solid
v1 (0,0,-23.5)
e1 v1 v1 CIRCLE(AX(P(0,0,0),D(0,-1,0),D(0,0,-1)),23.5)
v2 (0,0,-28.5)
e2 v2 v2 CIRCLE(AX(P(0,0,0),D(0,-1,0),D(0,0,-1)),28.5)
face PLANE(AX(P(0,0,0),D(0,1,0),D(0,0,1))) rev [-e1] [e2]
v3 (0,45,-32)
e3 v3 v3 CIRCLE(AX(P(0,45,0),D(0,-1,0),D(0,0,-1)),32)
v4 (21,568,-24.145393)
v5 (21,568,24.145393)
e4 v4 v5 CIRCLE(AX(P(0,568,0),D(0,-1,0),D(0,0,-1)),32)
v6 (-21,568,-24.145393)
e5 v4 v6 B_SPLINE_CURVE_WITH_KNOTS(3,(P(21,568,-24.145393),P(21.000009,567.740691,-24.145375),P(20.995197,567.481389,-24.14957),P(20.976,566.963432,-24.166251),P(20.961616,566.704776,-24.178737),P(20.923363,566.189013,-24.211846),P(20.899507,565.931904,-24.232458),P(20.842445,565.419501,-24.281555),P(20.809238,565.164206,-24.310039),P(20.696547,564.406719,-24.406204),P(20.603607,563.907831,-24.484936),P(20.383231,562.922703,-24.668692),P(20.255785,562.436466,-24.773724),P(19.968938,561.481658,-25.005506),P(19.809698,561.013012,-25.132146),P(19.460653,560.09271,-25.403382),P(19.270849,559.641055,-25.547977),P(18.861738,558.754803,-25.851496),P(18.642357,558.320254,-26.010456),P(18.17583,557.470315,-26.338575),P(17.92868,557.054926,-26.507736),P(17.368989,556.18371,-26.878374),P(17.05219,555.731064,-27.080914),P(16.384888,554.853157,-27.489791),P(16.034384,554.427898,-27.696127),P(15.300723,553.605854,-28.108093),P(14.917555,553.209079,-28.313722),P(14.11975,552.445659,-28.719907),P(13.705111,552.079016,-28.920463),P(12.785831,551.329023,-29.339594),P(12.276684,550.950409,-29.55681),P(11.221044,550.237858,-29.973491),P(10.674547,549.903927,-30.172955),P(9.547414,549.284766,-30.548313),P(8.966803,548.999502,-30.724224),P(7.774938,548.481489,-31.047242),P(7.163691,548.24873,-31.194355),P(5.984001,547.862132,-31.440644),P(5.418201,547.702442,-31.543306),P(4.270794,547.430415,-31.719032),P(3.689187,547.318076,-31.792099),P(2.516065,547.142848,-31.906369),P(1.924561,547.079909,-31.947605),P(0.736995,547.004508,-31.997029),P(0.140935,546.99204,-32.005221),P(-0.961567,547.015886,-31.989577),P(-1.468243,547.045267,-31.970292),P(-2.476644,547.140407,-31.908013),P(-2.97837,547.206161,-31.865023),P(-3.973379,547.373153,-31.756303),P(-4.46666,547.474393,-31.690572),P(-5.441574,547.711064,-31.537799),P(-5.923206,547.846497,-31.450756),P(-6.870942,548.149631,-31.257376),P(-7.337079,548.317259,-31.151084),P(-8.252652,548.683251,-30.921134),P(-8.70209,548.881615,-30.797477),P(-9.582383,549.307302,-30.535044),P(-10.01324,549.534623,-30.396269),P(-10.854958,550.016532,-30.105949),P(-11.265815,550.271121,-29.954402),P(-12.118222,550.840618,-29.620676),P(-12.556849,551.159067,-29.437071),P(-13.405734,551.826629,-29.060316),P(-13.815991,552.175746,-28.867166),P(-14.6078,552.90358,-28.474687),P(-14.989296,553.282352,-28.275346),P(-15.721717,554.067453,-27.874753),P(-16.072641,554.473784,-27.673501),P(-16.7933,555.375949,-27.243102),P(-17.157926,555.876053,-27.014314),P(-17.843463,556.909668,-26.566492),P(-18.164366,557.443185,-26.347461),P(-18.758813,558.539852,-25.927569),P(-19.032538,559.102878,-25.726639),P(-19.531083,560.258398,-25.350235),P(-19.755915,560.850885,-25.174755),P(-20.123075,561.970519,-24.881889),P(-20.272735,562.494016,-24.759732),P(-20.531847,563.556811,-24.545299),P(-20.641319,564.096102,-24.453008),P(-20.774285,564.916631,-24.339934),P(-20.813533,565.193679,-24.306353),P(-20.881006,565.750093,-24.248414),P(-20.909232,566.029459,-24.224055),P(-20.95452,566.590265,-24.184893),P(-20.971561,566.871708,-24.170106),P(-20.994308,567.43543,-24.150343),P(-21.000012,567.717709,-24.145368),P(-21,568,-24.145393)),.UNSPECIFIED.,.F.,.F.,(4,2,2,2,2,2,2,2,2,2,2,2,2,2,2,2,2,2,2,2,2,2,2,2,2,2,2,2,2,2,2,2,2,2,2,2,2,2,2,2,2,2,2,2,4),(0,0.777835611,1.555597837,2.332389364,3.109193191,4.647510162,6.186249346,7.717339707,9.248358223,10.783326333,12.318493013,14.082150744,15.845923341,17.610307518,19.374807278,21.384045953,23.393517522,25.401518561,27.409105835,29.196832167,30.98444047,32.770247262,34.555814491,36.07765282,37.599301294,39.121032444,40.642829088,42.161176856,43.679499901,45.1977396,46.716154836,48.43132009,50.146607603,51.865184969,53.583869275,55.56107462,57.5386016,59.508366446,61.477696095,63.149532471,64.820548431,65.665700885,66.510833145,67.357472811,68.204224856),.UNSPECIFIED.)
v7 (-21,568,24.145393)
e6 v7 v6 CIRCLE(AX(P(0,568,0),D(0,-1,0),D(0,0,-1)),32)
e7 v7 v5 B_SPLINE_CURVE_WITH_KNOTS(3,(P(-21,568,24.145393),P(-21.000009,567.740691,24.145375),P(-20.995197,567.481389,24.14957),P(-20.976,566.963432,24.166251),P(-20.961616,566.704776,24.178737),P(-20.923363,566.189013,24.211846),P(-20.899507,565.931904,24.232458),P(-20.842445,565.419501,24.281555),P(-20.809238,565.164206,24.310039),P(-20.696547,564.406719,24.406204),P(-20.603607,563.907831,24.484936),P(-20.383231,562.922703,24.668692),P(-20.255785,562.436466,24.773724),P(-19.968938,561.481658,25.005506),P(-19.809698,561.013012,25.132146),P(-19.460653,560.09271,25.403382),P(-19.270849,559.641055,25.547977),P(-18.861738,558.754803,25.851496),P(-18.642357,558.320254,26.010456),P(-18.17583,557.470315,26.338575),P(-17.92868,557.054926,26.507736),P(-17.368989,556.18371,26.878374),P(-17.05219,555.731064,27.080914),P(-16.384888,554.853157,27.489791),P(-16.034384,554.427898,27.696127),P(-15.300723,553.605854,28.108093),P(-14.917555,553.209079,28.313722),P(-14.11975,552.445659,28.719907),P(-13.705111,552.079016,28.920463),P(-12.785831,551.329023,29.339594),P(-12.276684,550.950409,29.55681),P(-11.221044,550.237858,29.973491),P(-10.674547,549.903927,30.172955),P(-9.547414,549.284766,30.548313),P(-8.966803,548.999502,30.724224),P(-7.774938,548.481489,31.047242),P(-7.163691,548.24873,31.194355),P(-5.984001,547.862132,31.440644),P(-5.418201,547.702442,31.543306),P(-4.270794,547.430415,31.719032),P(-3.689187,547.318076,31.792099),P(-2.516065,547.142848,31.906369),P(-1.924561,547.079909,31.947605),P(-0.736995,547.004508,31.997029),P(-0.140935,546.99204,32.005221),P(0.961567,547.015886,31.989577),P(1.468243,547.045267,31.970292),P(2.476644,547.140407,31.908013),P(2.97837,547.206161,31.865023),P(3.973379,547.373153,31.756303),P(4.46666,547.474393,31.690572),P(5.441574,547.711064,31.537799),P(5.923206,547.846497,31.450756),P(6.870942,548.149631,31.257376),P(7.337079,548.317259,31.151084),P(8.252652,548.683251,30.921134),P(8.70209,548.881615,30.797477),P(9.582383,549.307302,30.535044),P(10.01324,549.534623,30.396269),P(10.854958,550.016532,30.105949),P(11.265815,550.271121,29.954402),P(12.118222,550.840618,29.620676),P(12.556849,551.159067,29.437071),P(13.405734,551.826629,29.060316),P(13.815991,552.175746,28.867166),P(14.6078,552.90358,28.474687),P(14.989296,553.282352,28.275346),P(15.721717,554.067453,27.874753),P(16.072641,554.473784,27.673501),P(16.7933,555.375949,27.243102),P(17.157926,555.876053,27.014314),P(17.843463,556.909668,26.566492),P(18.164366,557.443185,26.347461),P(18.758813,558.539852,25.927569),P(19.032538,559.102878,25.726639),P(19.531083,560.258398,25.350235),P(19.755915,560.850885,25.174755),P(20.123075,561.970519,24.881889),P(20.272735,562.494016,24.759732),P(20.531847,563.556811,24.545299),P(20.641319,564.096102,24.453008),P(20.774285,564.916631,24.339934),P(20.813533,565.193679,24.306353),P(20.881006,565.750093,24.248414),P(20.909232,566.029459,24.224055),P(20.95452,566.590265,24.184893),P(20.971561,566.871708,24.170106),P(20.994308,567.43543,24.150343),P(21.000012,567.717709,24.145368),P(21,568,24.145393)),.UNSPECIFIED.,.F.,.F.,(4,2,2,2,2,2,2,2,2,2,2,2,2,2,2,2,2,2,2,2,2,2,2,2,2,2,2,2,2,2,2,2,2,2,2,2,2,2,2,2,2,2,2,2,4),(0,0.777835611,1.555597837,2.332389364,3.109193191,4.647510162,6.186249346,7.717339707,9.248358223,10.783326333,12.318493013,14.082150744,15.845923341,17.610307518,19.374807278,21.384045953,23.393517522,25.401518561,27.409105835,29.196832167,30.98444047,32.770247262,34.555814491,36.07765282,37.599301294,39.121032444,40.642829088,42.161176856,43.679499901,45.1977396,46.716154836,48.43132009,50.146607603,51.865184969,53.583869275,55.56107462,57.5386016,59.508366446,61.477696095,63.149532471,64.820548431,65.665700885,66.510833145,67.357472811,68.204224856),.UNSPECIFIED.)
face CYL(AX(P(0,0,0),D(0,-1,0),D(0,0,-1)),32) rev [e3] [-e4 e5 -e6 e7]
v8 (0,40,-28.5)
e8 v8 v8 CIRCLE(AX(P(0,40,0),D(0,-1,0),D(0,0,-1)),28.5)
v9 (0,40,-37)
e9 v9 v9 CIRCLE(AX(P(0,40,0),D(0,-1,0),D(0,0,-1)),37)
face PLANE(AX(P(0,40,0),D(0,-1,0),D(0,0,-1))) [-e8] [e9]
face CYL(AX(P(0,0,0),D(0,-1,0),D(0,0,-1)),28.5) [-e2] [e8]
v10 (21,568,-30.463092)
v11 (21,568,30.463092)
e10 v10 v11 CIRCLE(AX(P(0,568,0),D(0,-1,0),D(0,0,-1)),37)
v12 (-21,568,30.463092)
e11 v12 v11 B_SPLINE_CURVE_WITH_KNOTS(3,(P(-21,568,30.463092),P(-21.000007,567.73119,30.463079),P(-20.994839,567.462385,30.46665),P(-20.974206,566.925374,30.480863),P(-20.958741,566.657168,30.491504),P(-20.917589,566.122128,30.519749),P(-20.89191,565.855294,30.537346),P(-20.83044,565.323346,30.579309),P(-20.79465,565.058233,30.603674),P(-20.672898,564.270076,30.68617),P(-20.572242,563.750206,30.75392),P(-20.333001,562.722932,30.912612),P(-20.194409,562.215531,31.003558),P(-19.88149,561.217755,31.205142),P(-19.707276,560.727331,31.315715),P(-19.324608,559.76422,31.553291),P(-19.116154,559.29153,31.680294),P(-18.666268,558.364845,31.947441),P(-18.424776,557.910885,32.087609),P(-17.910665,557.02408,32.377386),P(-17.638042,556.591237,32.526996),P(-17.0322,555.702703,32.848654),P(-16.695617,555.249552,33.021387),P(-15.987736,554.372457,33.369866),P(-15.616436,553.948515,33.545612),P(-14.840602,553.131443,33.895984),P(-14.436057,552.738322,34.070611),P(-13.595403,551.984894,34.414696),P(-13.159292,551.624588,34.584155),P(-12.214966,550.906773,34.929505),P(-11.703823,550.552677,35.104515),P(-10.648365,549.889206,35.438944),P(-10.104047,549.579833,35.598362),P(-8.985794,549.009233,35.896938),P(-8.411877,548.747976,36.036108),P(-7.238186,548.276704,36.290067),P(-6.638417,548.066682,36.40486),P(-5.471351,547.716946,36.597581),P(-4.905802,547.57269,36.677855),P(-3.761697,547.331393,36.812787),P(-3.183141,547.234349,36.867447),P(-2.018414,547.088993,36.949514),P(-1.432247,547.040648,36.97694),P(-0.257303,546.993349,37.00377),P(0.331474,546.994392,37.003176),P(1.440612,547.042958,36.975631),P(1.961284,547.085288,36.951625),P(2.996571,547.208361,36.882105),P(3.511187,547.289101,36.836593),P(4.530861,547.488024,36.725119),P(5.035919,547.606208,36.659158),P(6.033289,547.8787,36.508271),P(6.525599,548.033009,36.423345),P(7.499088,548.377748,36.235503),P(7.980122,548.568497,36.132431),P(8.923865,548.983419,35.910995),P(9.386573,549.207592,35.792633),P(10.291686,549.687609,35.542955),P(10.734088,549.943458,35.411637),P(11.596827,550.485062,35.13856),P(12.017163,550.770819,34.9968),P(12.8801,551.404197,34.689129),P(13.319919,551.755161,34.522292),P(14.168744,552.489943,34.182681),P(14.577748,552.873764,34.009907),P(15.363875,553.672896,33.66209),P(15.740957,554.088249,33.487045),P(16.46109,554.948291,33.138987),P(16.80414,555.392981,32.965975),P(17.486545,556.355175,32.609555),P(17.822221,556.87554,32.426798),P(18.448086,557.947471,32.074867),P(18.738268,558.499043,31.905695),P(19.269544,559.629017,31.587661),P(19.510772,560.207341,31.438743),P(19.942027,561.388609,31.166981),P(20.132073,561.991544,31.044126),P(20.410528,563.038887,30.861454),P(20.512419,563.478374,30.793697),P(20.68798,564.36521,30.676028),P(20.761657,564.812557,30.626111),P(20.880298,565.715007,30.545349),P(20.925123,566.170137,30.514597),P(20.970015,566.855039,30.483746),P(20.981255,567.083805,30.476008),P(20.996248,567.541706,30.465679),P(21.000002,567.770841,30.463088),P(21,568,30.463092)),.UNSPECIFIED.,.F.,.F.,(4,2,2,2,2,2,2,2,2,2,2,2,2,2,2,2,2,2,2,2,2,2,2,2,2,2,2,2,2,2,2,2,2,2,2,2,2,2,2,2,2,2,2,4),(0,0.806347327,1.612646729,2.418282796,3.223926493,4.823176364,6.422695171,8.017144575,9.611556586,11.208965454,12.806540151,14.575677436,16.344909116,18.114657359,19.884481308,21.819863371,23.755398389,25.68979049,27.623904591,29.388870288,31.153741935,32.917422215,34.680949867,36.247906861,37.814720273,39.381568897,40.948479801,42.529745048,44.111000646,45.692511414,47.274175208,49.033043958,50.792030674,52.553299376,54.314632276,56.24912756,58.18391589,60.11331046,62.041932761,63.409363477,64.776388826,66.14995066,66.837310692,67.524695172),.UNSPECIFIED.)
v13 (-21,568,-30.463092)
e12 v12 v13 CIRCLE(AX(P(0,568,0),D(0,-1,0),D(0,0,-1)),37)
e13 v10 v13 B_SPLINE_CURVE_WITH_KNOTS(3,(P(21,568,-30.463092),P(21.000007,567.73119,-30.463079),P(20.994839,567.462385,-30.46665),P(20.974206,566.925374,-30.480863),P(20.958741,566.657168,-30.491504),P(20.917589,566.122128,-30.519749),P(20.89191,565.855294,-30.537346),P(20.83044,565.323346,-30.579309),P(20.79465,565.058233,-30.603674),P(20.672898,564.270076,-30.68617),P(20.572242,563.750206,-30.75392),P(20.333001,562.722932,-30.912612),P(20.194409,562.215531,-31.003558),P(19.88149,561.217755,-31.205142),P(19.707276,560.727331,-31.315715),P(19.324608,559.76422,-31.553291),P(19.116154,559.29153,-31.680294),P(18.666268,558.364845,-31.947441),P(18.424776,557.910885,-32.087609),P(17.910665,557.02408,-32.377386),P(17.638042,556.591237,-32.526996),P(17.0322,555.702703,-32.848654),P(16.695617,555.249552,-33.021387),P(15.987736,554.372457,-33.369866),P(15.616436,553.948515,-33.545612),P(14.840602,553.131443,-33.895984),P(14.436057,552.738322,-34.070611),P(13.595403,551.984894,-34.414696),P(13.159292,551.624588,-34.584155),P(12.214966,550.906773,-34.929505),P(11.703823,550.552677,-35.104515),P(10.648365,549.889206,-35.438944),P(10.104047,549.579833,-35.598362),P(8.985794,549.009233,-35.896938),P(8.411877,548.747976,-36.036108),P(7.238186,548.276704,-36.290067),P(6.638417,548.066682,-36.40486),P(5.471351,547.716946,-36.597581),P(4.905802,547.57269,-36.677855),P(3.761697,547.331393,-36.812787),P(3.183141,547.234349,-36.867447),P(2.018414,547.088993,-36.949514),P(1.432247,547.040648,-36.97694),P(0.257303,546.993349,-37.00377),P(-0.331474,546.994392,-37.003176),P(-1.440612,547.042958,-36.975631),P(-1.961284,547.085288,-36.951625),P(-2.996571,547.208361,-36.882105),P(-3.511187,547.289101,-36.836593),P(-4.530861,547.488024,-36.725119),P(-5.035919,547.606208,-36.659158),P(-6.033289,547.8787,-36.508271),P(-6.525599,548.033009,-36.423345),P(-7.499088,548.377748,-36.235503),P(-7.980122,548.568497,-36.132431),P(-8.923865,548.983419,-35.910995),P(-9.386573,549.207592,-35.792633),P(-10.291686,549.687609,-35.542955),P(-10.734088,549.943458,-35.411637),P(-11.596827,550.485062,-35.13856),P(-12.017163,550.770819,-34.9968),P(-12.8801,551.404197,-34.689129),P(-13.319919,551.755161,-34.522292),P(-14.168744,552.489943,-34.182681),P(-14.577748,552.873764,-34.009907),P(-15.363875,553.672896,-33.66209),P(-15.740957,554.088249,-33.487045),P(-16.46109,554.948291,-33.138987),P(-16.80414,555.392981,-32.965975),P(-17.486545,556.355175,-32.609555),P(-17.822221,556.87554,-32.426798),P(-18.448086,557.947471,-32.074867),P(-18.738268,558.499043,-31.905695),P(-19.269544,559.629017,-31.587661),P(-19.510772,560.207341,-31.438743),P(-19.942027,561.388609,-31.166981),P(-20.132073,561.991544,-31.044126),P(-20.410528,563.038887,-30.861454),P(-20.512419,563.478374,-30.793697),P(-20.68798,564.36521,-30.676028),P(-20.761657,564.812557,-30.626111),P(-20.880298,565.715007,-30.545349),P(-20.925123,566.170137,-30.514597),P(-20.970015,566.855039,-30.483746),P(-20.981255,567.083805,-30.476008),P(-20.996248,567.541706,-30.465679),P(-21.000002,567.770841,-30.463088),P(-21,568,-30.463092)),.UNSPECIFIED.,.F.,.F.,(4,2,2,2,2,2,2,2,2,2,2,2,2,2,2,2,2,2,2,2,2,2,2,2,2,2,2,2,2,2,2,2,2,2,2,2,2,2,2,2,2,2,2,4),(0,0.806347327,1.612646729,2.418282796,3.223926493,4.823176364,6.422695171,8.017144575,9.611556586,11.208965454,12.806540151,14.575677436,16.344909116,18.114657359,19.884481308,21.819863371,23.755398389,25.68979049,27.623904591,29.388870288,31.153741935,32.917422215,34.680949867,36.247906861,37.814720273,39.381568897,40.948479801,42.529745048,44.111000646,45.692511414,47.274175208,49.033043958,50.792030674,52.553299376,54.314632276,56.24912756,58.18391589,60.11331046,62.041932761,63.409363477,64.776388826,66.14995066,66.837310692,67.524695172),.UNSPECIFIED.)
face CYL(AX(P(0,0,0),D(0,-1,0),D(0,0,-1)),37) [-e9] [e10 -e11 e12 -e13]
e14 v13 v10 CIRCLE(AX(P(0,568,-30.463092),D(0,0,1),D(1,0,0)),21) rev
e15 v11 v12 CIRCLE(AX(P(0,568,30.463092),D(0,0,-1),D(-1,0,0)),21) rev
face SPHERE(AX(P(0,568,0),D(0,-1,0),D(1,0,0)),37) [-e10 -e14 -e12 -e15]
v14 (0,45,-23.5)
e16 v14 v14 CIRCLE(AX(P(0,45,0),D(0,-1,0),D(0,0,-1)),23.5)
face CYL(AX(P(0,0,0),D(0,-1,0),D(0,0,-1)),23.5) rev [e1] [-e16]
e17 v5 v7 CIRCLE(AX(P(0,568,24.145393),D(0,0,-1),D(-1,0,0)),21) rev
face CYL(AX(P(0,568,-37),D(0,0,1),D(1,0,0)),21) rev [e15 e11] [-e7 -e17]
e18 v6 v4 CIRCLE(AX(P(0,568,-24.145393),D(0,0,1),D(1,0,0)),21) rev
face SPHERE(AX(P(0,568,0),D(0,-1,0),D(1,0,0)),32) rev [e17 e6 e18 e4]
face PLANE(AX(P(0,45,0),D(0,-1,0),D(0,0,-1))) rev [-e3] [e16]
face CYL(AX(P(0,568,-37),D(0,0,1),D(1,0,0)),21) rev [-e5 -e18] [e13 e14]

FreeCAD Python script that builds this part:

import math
import FreeCAD as App
import Part
import Sketcher

V = App.Vector

doc = App.newDocument("Part")
params = doc.addObject("Spreadsheet::Sheet", "Params")
for row, (alias, value) in enumerate([
    ("sketch1_radius", "37 mm"),
    ("sketch1_radius2", "32 mm"),
    ("sketch1_height", "40 mm"),
    ("sketch1_height2", "528 mm"),
    ("sketch1_height3", "523 mm"),
    ("revolution_angle", "360 deg"),
    ("sketch2_diameter", "42 mm"),
], start=1):
    params.set(f"A{row}", alias)
    params.set(f"B{row}", "=" + value)
    params.setAlias(f"B{row}", alias)

body = doc.addObject("PartDesign::Body", "Body")

sketch1 = body.newObject("Sketcher::SketchObject", "Sketch")
sketch1.AttachmentSupport = (doc.getObject("XY_Plane"), [""])
sketch1.MapMode = "FlatFace"
sketch1.addGeometry(Part.LineSegment(V(23.5, 0, 0), V(28.5, 0, 0)), False)
sketch1.addGeometry(Part.LineSegment(V(28.5, 0, 0), V(28.5, 40, 0)), False)
sketch1.addGeometry(Part.LineSegment(V(28.5, 40, 0), V(37, 40, 0)), False)
sketch1.addGeometry(Part.LineSegment(V(37, 40, 0), V(37, 568, 0)), False)
sketch1.addGeometry(Part.ArcOfCircle(Part.Circle(V(0, 568, 0), V(0, 0, 1), 37), math.radians(0), math.radians(90)), False)
sketch1.addGeometry(Part.LineSegment(V(0, 605, 0), V(0, 600, 0)), False)
sketch1.addGeometry(Part.ArcOfCircle(Part.Circle(V(0, 568, 0), V(0, 0, 1), 32), math.radians(0), math.radians(90)), False)
sketch1.addGeometry(Part.LineSegment(V(32, 568, 0), V(32, 45, 0)), False)
sketch1.addGeometry(Part.LineSegment(V(32, 45, 0), V(23.5, 45, 0)), False)
sketch1.addGeometry(Part.LineSegment(V(23.5, 45, 0), V(23.5, 0, 0)), False)
sketch1.addConstraint(Sketcher.Constraint("Coincident", 0, 2, 1, 1))
sketch1.addConstraint(Sketcher.Constraint("Coincident", 1, 2, 2, 1))
sketch1.addConstraint(Sketcher.Constraint("Coincident", 2, 2, 3, 1))
sketch1.addConstraint(Sketcher.Constraint("Tangent", 3, 2, 4, 1))
sketch1.addConstraint(Sketcher.Constraint("Coincident", 4, 2, 5, 1))
sketch1.addConstraint(Sketcher.Constraint("Coincident", 5, 2, 6, 2))
sketch1.addConstraint(Sketcher.Constraint("Tangent", 6, 1, 7, 1))
sketch1.addConstraint(Sketcher.Constraint("Coincident", 7, 2, 8, 1))
sketch1.addConstraint(Sketcher.Constraint("Coincident", 8, 2, 9, 1))
sketch1.addConstraint(Sketcher.Constraint("Coincident", 9, 2, 0, 1))
sketch1.addConstraint(Sketcher.Constraint("Horizontal", 0))
sketch1.addConstraint(Sketcher.Constraint("Vertical", 1))
sketch1.addConstraint(Sketcher.Constraint("Horizontal", 2))
sketch1.addConstraint(Sketcher.Constraint("Vertical", 3))
sketch1.addConstraint(Sketcher.Constraint("Vertical", 5))
sketch1.addConstraint(Sketcher.Constraint("Vertical", 7))
sketch1.addConstraint(Sketcher.Constraint("Horizontal", 8))
sketch1.addConstraint(Sketcher.Constraint("Vertical", 9))
sketch1.addConstraint(Sketcher.Constraint("Coincident", 6, 3, 4, 3))
sketch1.addConstraint(Sketcher.Constraint("PointOnObject", 4, 3, -2))
sketch1.addConstraint(Sketcher.Constraint("PointOnObject", 0, 2, -1))
sketch1.addConstraint(Sketcher.Constraint("PointOnObject", 4, 2, -2))
sketch1.addConstraint(Sketcher.Constraint("Equal", 2, 8))
sketch1.addConstraint(Sketcher.Constraint("Radius", 4, 37.0))
sketch1.addConstraint(Sketcher.Constraint("Radius", 6, 32.0))
sketch1.addConstraint(Sketcher.Constraint("DistanceY", 1, 1, 1, 2, 40.0))
sketch1.addConstraint(Sketcher.Constraint("DistanceY", 3, 1, 3, 2, 528.0))
sketch1.addConstraint(Sketcher.Constraint("DistanceY", 7, 2, 7, 1, 523.0))
sketch1.addConstraint(Sketcher.Constraint("DistanceX", 2, 1, 2, 2, 8.5))
sketch1.setExpression("Constraints[23]", "Params.sketch1_radius")
sketch1.setExpression("Constraints[24]", "Params.sketch1_radius2")
sketch1.setExpression("Constraints[25]", "Params.sketch1_height")
sketch1.setExpression("Constraints[26]", "Params.sketch1_height2")
sketch1.setExpression("Constraints[27]", "Params.sketch1_height3")
revolution = body.newObject("PartDesign::Revolution", "Revolution")
revolution.Profile = sketch1
revolution.ReferenceAxis = (sketch1, ["V_Axis"])
revolution.setExpression("Angle", "Params.revolution_angle")

sketch2 = body.newObject("Sketcher::SketchObject", "Sketch001")
sketch2.AttachmentSupport = (doc.getObject("XY_Plane"), [""])
sketch2.MapMode = "FlatFace"
sketch2.addGeometry(Part.Circle(V(0, 568, 0), V(0, 0, 1), 21), False)
sketch2.addConstraint(Sketcher.Constraint("PointOnObject", 0, 3, -2))
sketch2.addConstraint(Sketcher.Constraint("Diameter", 0, 42.0))
sketch2.addConstraint(Sketcher.Constraint("DistanceY", -1, 1, 0, 3, 568.0))
sketch2.setExpression("Constraints[1]", "Params.sketch2_diameter")
pocket1 = body.newObject("PartDesign::Pocket", "Pocket")
pocket1.Profile = sketch2
pocket1.Type = "ThroughAll"
pocket1.Midplane = True

doc.recompute()
